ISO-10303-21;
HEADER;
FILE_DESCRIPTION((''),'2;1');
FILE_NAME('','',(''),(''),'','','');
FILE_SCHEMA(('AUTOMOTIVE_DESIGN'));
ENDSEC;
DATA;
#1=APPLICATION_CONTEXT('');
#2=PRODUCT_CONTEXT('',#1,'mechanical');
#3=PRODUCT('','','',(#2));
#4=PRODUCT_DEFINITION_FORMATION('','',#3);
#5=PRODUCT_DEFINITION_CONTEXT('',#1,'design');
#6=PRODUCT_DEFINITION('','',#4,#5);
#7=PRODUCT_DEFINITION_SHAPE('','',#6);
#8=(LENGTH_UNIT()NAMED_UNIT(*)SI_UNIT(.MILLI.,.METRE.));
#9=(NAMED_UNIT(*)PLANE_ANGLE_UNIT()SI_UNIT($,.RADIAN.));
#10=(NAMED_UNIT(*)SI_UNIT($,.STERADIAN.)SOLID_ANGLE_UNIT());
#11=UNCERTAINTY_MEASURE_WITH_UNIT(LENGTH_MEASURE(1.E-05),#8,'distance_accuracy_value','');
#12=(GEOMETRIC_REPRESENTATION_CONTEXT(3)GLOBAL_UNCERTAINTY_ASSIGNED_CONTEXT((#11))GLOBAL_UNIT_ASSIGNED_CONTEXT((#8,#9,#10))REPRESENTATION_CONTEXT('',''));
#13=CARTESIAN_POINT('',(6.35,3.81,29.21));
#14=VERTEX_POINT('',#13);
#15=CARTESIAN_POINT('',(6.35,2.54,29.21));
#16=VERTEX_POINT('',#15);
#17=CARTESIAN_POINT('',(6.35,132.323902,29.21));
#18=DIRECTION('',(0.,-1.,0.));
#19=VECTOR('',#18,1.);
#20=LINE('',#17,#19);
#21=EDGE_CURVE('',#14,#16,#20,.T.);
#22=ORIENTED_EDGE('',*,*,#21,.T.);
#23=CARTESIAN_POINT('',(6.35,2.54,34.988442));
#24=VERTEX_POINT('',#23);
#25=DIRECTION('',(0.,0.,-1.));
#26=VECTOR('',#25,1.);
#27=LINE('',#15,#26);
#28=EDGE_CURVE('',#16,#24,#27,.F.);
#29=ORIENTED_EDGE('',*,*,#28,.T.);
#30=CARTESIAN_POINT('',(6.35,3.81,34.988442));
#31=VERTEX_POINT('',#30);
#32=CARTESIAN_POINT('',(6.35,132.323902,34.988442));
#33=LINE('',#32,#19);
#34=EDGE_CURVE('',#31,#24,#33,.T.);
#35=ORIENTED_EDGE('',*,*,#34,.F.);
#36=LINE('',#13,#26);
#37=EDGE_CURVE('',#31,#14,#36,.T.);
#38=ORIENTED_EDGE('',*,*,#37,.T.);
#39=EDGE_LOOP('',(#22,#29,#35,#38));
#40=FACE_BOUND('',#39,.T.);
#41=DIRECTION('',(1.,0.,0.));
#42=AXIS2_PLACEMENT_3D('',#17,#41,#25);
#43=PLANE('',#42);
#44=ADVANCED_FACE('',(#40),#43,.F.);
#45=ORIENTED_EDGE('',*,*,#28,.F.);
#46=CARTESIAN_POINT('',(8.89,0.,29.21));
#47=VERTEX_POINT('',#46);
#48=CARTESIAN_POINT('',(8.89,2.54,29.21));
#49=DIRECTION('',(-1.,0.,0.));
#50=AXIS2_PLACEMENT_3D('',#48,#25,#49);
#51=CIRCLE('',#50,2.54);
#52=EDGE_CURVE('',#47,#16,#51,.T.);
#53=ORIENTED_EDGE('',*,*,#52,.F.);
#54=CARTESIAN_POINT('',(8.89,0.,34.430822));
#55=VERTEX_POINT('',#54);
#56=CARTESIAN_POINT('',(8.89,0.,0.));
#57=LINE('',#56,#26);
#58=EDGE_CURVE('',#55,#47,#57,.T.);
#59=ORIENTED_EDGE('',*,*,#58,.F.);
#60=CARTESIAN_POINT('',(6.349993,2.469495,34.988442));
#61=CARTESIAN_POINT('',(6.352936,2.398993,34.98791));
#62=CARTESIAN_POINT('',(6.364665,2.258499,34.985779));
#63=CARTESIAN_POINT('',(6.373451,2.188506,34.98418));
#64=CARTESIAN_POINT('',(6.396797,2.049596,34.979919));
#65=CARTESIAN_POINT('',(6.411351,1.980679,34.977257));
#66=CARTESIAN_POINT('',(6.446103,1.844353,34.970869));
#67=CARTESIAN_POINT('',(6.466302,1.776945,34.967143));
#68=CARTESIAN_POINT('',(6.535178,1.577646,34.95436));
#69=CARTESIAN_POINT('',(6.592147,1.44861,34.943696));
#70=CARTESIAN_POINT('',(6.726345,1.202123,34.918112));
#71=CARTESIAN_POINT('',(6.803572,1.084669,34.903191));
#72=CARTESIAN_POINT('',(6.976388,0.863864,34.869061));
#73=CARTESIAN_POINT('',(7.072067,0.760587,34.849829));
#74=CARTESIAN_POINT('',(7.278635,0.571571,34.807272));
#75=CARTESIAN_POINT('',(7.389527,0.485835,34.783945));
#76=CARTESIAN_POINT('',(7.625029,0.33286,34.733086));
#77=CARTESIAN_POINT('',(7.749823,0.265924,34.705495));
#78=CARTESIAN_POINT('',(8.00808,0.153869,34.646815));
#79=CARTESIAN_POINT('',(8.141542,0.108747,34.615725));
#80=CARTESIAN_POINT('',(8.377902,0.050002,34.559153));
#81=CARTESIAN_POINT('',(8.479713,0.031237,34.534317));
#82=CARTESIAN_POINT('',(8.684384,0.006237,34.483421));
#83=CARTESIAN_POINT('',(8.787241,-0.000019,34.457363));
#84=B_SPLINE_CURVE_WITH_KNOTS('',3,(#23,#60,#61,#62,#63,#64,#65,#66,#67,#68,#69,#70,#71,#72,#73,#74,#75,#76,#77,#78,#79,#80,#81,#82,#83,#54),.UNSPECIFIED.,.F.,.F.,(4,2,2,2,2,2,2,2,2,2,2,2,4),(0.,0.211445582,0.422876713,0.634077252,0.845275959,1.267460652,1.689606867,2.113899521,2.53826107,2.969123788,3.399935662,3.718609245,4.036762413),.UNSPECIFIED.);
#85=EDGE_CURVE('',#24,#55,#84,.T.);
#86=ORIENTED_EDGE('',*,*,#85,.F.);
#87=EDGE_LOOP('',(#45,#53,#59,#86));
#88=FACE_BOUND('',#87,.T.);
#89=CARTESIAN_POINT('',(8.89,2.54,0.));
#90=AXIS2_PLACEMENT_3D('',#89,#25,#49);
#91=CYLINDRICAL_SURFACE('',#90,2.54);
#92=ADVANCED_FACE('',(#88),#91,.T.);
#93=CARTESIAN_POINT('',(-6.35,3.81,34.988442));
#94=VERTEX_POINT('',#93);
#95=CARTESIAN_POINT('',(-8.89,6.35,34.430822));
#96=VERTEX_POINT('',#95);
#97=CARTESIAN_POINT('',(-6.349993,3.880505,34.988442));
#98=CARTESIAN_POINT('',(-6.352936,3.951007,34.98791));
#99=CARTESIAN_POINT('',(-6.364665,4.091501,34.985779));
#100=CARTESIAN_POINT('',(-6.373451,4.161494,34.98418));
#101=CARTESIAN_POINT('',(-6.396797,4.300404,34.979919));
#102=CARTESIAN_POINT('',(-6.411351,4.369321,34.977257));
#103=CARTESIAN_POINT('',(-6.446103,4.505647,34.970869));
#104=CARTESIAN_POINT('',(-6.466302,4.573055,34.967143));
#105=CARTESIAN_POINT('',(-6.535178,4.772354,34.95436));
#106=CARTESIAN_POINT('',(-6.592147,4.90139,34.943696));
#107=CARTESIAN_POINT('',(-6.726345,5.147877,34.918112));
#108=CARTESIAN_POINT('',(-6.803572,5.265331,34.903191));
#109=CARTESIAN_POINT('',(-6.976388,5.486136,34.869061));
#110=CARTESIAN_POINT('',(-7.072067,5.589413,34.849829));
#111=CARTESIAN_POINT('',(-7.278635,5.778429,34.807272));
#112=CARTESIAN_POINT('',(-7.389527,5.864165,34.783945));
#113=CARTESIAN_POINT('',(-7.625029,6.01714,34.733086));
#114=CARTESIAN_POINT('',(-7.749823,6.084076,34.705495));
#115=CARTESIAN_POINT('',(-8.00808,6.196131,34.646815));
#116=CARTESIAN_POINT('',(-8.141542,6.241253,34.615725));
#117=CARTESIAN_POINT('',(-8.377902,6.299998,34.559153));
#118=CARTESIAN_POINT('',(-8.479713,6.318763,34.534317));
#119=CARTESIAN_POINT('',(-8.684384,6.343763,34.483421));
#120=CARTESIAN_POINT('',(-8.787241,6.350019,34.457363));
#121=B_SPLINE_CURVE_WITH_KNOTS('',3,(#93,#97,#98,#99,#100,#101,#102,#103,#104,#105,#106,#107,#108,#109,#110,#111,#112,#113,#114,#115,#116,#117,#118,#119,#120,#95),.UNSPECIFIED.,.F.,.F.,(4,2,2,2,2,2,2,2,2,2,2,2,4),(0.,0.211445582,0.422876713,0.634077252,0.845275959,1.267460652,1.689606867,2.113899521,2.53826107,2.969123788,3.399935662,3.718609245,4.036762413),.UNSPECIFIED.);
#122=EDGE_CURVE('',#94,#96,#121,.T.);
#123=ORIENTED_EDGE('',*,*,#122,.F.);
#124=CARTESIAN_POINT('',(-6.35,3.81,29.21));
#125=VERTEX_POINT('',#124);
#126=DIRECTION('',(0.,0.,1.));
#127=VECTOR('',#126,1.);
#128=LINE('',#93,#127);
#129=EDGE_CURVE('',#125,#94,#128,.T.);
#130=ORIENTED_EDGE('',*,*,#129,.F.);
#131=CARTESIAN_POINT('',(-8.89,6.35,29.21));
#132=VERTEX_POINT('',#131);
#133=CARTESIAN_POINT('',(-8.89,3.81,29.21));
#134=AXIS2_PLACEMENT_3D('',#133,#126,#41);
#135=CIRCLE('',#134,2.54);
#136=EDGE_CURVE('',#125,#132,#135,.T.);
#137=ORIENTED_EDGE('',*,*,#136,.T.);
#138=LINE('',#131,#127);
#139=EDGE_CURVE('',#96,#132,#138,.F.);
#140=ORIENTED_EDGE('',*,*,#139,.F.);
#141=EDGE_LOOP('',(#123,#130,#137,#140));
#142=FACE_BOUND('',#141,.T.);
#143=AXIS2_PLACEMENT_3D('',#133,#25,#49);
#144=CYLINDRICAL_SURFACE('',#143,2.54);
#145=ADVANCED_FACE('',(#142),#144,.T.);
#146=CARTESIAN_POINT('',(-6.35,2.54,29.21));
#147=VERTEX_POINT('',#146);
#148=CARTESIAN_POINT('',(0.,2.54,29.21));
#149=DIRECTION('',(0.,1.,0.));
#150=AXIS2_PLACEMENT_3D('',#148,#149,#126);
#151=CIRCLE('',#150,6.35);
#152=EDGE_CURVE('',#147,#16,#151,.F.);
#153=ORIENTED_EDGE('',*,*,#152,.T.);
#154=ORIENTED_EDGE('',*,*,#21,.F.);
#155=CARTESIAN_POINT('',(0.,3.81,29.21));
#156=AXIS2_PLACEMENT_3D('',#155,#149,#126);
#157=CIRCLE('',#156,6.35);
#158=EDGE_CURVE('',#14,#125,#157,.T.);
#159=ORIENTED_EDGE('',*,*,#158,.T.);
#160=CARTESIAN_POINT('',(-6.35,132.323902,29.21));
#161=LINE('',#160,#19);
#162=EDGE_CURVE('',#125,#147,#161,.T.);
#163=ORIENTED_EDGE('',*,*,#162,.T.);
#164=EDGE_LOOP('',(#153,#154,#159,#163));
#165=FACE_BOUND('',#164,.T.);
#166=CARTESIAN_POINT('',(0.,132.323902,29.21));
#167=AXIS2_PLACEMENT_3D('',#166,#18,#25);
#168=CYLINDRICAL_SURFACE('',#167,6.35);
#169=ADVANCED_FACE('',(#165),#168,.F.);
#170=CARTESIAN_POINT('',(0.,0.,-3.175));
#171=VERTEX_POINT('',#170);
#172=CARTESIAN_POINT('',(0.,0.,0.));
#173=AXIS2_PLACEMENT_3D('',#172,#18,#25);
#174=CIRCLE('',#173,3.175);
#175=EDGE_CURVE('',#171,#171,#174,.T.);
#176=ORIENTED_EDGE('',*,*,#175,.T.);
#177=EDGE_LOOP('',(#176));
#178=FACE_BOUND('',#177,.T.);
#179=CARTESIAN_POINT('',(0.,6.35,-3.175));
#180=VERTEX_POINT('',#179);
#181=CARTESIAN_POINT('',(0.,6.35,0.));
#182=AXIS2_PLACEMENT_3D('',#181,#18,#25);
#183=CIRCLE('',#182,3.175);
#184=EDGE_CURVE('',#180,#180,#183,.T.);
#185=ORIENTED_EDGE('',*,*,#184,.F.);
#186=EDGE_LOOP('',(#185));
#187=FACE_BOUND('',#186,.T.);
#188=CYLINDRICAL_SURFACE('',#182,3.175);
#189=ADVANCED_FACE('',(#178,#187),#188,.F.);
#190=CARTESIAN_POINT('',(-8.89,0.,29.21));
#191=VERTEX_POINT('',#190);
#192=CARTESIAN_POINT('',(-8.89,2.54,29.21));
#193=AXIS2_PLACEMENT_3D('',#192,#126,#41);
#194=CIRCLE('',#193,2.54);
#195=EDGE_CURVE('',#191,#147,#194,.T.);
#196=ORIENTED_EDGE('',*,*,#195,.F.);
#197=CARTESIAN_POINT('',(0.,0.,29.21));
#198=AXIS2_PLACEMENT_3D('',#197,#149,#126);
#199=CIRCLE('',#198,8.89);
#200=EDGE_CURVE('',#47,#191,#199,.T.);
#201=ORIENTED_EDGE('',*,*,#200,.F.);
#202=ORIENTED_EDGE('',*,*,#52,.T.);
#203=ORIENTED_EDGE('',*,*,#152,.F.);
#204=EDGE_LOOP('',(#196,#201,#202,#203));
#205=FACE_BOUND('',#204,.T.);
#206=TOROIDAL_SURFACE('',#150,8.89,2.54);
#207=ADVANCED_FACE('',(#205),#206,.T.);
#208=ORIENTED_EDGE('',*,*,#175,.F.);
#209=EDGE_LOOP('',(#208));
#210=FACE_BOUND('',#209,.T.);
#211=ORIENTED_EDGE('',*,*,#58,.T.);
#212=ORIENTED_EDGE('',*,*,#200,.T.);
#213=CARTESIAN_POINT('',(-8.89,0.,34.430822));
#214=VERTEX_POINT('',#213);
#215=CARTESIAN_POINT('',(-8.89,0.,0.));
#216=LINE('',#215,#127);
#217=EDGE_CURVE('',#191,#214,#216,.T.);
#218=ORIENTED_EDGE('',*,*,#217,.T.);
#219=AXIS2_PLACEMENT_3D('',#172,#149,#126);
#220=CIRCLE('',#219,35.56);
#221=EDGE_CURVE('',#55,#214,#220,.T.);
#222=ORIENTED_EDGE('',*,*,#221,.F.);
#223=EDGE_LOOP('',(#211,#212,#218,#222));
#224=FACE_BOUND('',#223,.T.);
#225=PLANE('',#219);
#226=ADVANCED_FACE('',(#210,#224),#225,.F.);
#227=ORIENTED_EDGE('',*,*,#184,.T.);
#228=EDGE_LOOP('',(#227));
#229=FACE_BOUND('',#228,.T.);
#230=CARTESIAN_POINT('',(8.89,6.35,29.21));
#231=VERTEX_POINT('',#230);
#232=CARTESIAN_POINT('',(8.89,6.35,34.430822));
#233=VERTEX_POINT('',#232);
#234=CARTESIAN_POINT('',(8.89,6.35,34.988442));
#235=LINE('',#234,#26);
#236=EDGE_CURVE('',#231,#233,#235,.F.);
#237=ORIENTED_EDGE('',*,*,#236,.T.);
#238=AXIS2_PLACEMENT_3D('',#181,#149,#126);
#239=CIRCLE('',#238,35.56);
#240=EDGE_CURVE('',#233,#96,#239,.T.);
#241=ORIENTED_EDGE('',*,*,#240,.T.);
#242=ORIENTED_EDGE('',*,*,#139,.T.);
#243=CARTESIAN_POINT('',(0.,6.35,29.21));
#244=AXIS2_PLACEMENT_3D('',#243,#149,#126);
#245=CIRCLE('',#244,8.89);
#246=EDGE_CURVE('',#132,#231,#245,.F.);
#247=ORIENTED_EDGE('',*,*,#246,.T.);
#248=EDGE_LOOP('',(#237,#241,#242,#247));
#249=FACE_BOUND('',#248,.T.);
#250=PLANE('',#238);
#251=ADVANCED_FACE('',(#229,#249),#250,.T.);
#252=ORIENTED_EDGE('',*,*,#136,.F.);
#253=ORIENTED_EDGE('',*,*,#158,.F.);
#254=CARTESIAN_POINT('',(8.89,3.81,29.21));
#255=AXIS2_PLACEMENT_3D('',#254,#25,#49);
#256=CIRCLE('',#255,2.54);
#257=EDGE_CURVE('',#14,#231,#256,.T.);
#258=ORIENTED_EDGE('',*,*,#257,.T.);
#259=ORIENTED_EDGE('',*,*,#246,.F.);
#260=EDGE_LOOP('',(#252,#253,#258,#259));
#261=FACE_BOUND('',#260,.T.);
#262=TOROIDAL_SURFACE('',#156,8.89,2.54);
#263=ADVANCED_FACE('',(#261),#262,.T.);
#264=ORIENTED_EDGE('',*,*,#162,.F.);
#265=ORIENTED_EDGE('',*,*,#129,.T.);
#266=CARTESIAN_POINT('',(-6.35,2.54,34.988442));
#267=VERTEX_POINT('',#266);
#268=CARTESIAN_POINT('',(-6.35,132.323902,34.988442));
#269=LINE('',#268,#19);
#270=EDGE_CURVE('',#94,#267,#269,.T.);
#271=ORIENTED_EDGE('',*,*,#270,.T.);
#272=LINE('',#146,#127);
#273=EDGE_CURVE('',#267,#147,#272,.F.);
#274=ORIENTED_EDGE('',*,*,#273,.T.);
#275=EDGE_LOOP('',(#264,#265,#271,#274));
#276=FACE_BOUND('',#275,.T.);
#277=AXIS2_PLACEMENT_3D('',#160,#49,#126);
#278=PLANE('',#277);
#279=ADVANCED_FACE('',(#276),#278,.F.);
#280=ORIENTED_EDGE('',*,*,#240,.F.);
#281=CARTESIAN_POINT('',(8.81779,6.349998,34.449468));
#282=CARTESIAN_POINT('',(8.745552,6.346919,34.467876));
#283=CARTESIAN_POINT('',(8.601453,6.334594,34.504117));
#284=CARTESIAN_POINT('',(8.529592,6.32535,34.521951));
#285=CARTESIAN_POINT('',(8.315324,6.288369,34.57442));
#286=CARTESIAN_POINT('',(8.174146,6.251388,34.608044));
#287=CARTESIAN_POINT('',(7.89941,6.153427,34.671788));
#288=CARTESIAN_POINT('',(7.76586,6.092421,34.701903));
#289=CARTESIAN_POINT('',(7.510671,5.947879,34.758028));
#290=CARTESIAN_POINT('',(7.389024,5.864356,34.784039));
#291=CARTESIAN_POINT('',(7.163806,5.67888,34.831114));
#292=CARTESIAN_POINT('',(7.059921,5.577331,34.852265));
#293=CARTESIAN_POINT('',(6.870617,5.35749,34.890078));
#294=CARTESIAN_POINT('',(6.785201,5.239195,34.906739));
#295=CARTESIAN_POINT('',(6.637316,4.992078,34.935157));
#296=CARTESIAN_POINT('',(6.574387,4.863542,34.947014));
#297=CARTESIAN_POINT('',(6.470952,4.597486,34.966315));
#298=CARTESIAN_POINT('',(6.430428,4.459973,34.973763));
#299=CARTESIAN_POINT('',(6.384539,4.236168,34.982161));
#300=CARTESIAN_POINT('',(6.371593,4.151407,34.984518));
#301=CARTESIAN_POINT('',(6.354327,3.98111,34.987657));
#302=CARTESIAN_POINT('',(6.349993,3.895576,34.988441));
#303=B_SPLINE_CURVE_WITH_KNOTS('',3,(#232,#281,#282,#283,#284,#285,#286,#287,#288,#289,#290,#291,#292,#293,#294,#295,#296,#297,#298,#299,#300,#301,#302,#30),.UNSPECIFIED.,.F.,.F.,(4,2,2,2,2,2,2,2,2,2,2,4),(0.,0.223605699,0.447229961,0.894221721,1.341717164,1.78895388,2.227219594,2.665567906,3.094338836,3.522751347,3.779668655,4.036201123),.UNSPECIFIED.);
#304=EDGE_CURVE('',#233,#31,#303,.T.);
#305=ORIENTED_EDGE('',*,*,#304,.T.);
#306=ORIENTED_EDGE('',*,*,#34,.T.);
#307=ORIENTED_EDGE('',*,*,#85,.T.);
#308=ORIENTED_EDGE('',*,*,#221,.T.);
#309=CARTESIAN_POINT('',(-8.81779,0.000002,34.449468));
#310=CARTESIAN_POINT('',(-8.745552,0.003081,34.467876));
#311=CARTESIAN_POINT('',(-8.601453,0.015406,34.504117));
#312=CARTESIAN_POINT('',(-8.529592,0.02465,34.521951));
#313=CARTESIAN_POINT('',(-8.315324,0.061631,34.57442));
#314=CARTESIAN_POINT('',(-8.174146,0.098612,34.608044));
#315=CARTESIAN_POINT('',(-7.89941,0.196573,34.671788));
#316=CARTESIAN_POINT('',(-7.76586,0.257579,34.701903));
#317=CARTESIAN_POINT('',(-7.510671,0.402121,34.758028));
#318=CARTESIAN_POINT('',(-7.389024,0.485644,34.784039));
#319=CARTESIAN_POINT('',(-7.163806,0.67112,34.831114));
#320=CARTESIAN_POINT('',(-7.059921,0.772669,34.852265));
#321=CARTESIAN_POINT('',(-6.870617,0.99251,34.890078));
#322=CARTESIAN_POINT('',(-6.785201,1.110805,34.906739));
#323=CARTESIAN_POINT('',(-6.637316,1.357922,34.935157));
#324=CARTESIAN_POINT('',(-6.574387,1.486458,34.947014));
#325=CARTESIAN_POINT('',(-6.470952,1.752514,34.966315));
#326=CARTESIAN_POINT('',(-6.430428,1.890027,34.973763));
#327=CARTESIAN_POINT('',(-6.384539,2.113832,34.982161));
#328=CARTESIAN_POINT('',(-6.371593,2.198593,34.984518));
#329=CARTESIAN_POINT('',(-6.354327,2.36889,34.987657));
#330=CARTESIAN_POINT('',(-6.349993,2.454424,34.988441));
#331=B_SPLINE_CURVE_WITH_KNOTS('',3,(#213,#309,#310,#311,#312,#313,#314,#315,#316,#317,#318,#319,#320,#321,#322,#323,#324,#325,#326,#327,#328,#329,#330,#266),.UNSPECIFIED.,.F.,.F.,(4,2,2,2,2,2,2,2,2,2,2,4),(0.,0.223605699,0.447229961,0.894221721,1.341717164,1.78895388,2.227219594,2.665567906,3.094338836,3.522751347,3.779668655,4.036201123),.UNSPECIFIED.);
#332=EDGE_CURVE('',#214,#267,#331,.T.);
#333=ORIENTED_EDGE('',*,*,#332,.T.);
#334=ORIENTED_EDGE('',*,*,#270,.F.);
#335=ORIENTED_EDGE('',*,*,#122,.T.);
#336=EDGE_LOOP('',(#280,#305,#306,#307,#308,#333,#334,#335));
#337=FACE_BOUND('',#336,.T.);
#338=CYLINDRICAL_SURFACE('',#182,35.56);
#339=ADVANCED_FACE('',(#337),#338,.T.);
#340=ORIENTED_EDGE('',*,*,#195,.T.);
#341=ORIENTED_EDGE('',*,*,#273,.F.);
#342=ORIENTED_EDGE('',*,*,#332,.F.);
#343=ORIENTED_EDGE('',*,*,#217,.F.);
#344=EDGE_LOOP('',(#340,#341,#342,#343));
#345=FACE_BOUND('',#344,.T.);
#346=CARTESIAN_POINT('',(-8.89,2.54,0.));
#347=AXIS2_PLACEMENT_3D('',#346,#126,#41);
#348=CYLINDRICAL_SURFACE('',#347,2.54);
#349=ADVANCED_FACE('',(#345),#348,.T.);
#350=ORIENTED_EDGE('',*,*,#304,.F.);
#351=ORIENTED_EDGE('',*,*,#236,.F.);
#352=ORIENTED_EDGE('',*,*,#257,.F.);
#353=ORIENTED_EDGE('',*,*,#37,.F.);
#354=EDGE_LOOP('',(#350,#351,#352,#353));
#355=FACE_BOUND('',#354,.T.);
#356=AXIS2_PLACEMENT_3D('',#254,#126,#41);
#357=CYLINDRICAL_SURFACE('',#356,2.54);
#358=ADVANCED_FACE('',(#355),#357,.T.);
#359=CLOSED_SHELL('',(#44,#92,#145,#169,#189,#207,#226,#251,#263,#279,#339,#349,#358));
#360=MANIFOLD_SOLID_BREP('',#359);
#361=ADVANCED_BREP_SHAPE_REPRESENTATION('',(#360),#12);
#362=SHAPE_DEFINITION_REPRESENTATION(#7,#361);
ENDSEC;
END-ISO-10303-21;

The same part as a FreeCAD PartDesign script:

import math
import FreeCAD as App
import Part
import Sketcher
from FreeCAD import Vector
Q = App.Units.Quantity


def edges_at(feature, points):
    """Names of the edges that pass closest to the given points."""
    edges = feature.Shape.Edges
    near = lambda p: min(range(len(edges)), key=lambda i: edges[i].distToShape(Part.Vertex(*p))[0])
    return sorted({f"Edge{near(p) + 1}" for p in points})

doc = App.newDocument("Part")
body = doc.addObject("PartDesign::Body", "Body")

# Sketch on XZ plane
sketch1 = body.newObject("Sketcher::SketchObject", "Sketch")
sketch1.AttachmentSupport = (doc.getObject("XZ_Plane"), [""])
sketch1.MapMode = "FlatFace"
sketch1.addGeometry(Part.Circle(Vector(0, 0, 0), Vector(0, 0, 1), 35.56), False)
sketch1.addConstraint([
    Sketcher.Constraint("Coincident", 0, 3, -1, 1),
    Sketcher.Constraint("Diameter", 0, Q("2.8 in")),
])
pad1 = body.newObject("PartDesign::Pad", "Pad")
pad1.Profile = sketch1
pad1.Length = Q("0.25 in")
pad1.Reversed = True

# Sketch on XZ plane
sketch2 = body.newObject("Sketcher::SketchObject", "Sketch001")
sketch2.AttachmentSupport = (doc.getObject("XZ_Plane"), [""])
sketch2.MapMode = "FlatFace"
sketch2.AttachmentOffset = App.Placement(Vector(0, 0, -0.25 * 25.4), App.Rotation())
sketch2.addGeometry([
    Part.ArcOfCircle(Part.Circle(Vector(0, 29.21, 0), Vector(0, 0, 1), 6.35), math.radians(180), math.radians(360)),
    Part.LineSegment(Vector(-6.35, 29.21, 0), Vector(-6.35, 557.337008, 0)),
    Part.LineSegment(Vector(-6.35, 557.337008, 0), Vector(6.35, 557.337008, 0)),
    Part.LineSegment(Vector(6.35, 557.337008, 0), Vector(6.35, 29.21, 0)),
], False)
sketch2.addConstraint([
    Sketcher.Constraint("Tangent", 0, 1, 1, 1),
    Sketcher.Constraint("Coincident", 1, 2, 2, 1),
    Sketcher.Constraint("Coincident", 2, 2, 3, 1),
    Sketcher.Constraint("Tangent", 3, 2, 0, 2),
    Sketcher.Constraint("Vertical", 1),
    Sketcher.Constraint("Horizontal", 2),
    Sketcher.Constraint("Vertical", 3),
    Sketcher.Constraint("PointOnObject", 0, 3, -2),
    Sketcher.Constraint("Radius", 0, Q("0.25 in")),
    Sketcher.Constraint("DistanceY", -1, 1, 0, 3, Q("1.15 in")),
    Sketcher.Constraint("DistanceY", 1, 1, 1, 2, Q("528.127008 mm")),
])
pocket1 = body.newObject("PartDesign::Pocket", "Pocket")
pocket1.Profile = sketch2
pocket1.Type = "ThroughAll"
pocket1.Midplane = True
doc.recompute()

fillet = body.newObject("PartDesign::Fillet", "Fillet")
fillet.Base = (pocket1, edges_at(pocket1, [
    (-6.35, 6.35, 32.099),
    (0, 6.35, 22.86),
    (6.35, 6.35, 32.099),
    (6.35, 0, 32.099),
    (0, 0, 22.86),
    (-6.35, 0, 32.099),
]))
fillet.Radius = Q("0.1 in")

# Sketch on XZ plane
sketch3 = body.newObject("Sketcher::SketchObject", "Sketch002")
sketch3.AttachmentSupport = (doc.getObject("XZ_Plane"), [""])
sketch3.MapMode = "FlatFace"
sketch3.addGeometry(Part.Circle(Vector(0, 0, 0), Vector(0, 0, 1), 3.175), False)
sketch3.addConstraint([
    Sketcher.Constraint("Coincident", 0, 3, -1, 1),
    Sketcher.Constraint("Diameter", 0, Q("0.25 in")),
])
pocket2 = body.newObject("PartDesign::Pocket", "Pocket001")
pocket2.Profile = sketch3
pocket2.Type = "ThroughAll"

doc.recompute()
